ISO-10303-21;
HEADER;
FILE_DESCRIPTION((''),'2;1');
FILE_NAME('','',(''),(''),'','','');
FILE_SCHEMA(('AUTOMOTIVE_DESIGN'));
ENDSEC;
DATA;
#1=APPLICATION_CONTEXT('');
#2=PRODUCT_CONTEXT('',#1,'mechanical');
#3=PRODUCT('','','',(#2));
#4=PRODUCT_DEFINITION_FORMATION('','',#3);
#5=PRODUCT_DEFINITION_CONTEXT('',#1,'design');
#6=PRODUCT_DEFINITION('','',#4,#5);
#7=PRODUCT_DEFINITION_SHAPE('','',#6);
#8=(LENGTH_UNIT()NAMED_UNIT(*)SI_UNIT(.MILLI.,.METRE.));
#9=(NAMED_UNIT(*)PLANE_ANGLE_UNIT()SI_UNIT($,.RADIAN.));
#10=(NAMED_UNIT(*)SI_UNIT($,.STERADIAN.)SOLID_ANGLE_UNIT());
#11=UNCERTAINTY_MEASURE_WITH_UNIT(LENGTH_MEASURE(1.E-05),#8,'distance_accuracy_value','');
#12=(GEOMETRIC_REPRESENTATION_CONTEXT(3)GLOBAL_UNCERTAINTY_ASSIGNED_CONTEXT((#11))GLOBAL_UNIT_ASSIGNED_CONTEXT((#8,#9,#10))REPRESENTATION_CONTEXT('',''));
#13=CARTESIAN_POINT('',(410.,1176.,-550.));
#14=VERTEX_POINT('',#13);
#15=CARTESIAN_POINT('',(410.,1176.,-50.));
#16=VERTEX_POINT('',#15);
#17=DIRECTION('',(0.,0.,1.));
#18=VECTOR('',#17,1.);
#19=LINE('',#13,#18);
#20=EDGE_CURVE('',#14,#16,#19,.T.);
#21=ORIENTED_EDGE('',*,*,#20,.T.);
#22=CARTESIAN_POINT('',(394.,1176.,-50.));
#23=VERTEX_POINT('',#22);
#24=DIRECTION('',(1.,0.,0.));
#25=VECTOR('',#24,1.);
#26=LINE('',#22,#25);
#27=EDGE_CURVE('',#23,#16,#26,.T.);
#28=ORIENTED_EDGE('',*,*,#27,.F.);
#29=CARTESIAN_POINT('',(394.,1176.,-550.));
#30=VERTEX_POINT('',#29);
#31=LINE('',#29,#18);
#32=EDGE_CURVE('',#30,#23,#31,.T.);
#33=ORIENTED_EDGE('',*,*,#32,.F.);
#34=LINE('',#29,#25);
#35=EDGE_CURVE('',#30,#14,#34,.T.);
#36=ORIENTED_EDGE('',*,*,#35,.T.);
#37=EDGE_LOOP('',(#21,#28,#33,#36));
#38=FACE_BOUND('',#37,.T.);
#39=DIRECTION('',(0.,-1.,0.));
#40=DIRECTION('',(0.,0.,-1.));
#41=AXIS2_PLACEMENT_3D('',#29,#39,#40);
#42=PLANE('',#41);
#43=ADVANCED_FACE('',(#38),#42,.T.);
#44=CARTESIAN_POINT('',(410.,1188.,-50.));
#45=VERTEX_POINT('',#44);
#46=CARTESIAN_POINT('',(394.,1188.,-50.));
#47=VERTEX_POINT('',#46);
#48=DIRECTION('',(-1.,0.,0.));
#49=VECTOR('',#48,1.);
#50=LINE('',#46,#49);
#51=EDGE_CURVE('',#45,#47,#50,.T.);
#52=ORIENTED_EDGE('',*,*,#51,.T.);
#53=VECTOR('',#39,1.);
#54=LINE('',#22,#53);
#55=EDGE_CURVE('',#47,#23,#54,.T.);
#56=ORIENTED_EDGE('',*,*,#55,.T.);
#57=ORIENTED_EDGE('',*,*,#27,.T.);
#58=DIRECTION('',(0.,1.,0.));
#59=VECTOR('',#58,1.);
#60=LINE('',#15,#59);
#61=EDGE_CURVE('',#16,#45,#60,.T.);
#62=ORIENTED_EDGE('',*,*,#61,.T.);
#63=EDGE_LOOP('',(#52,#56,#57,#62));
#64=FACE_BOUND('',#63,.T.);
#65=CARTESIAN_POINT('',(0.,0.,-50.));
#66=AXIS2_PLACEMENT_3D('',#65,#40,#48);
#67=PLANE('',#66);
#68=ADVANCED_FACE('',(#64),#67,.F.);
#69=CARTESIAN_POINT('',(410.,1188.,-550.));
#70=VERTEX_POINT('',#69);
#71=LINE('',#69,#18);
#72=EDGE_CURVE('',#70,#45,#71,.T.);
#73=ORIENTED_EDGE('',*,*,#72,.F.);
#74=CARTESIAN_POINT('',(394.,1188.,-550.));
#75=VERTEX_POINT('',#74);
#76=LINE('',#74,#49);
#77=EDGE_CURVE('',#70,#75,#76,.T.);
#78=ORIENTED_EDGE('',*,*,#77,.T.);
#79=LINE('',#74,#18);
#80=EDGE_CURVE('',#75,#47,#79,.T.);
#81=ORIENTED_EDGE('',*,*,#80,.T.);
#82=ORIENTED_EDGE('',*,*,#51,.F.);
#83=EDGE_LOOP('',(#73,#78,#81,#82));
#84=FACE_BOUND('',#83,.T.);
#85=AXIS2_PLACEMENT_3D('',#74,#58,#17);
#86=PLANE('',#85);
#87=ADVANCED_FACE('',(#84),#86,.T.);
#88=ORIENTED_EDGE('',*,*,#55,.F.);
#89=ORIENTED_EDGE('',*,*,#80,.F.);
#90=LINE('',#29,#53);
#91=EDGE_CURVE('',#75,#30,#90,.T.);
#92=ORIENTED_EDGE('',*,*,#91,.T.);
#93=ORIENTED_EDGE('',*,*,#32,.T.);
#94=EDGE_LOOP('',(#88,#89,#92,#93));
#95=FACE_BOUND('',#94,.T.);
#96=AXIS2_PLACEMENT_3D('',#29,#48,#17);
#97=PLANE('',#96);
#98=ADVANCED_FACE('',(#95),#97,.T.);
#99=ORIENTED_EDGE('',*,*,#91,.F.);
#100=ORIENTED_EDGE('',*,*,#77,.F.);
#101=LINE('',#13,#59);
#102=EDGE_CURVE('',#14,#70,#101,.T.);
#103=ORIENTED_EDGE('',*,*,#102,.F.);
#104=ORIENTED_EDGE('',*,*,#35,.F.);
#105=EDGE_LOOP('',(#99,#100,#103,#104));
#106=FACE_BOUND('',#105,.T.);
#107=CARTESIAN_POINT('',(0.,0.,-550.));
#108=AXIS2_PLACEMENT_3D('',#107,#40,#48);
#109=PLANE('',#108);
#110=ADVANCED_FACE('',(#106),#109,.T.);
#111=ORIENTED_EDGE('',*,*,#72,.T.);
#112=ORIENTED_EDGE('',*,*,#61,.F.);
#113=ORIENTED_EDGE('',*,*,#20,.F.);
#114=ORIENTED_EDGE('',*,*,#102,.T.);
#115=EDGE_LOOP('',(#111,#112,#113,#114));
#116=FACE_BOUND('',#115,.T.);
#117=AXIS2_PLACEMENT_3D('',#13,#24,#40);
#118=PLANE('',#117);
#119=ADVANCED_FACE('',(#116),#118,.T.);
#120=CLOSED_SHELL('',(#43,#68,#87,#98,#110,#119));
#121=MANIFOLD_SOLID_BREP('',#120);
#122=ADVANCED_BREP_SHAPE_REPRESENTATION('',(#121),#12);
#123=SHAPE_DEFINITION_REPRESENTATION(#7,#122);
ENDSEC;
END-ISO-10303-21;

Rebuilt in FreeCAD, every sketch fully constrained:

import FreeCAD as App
import Part
import Sketcher
from FreeCAD import Vector
Q = App.Units.Quantity

doc = App.newDocument("Part")
body = doc.addObject("PartDesign::Body", "Body")

sketch1 = doc.addObject("Sketcher::SketchObject", "Sketch")
body.addObject(sketch1)
sketch1.AttachmentSupport = (doc.XY_Plane, [""])
sketch1.MapMode = "FlatFace"
sketch1.AttachmentOffset = App.Placement(Vector(0, 0, -50), App.Rotation())
sketch1.addGeometry([
    Part.LineSegment(Vector(394, 1188, 0), Vector(394, 1176, 0)),
    Part.LineSegment(Vector(394, 1176, 0), Vector(410, 1176, 0)),
    Part.LineSegment(Vector(410, 1176, 0), Vector(410, 1188, 0)),
    Part.LineSegment(Vector(410, 1188, 0), Vector(394, 1188, 0)),
], False)
sketch1.addConstraint([
    Sketcher.Constraint("Coincident", 0, 2, 1, 1),
    Sketcher.Constraint("Coincident", 1, 2, 2, 1),
    Sketcher.Constraint("Coincident", 2, 2, 3, 1),
    Sketcher.Constraint("Coincident", 3, 2, 0, 1),
    Sketcher.Constraint("Vertical", 0),
    Sketcher.Constraint("Horizontal", 1),
    Sketcher.Constraint("Vertical", 2),
    Sketcher.Constraint("Horizontal", 3),
    Sketcher.Constraint("DistanceX", 1, 1, 1, 2, Q("16 mm")),
    Sketcher.Constraint("DistanceY", 0, 2, 0, 1, Q("12 mm")),
    Sketcher.Constraint("DistanceX", -1, 1, 0, 2, Q("394 mm")),
    Sketcher.Constraint("DistanceY", -1, 1, 0, 2, Q("1176 mm")),
])
pad1 = doc.addObject("PartDesign::Pad", "Pad")
body.addObject(pad1)
pad1.Profile = sketch1
pad1.Length = 500
pad1.Reversed = True

doc.recompute()
